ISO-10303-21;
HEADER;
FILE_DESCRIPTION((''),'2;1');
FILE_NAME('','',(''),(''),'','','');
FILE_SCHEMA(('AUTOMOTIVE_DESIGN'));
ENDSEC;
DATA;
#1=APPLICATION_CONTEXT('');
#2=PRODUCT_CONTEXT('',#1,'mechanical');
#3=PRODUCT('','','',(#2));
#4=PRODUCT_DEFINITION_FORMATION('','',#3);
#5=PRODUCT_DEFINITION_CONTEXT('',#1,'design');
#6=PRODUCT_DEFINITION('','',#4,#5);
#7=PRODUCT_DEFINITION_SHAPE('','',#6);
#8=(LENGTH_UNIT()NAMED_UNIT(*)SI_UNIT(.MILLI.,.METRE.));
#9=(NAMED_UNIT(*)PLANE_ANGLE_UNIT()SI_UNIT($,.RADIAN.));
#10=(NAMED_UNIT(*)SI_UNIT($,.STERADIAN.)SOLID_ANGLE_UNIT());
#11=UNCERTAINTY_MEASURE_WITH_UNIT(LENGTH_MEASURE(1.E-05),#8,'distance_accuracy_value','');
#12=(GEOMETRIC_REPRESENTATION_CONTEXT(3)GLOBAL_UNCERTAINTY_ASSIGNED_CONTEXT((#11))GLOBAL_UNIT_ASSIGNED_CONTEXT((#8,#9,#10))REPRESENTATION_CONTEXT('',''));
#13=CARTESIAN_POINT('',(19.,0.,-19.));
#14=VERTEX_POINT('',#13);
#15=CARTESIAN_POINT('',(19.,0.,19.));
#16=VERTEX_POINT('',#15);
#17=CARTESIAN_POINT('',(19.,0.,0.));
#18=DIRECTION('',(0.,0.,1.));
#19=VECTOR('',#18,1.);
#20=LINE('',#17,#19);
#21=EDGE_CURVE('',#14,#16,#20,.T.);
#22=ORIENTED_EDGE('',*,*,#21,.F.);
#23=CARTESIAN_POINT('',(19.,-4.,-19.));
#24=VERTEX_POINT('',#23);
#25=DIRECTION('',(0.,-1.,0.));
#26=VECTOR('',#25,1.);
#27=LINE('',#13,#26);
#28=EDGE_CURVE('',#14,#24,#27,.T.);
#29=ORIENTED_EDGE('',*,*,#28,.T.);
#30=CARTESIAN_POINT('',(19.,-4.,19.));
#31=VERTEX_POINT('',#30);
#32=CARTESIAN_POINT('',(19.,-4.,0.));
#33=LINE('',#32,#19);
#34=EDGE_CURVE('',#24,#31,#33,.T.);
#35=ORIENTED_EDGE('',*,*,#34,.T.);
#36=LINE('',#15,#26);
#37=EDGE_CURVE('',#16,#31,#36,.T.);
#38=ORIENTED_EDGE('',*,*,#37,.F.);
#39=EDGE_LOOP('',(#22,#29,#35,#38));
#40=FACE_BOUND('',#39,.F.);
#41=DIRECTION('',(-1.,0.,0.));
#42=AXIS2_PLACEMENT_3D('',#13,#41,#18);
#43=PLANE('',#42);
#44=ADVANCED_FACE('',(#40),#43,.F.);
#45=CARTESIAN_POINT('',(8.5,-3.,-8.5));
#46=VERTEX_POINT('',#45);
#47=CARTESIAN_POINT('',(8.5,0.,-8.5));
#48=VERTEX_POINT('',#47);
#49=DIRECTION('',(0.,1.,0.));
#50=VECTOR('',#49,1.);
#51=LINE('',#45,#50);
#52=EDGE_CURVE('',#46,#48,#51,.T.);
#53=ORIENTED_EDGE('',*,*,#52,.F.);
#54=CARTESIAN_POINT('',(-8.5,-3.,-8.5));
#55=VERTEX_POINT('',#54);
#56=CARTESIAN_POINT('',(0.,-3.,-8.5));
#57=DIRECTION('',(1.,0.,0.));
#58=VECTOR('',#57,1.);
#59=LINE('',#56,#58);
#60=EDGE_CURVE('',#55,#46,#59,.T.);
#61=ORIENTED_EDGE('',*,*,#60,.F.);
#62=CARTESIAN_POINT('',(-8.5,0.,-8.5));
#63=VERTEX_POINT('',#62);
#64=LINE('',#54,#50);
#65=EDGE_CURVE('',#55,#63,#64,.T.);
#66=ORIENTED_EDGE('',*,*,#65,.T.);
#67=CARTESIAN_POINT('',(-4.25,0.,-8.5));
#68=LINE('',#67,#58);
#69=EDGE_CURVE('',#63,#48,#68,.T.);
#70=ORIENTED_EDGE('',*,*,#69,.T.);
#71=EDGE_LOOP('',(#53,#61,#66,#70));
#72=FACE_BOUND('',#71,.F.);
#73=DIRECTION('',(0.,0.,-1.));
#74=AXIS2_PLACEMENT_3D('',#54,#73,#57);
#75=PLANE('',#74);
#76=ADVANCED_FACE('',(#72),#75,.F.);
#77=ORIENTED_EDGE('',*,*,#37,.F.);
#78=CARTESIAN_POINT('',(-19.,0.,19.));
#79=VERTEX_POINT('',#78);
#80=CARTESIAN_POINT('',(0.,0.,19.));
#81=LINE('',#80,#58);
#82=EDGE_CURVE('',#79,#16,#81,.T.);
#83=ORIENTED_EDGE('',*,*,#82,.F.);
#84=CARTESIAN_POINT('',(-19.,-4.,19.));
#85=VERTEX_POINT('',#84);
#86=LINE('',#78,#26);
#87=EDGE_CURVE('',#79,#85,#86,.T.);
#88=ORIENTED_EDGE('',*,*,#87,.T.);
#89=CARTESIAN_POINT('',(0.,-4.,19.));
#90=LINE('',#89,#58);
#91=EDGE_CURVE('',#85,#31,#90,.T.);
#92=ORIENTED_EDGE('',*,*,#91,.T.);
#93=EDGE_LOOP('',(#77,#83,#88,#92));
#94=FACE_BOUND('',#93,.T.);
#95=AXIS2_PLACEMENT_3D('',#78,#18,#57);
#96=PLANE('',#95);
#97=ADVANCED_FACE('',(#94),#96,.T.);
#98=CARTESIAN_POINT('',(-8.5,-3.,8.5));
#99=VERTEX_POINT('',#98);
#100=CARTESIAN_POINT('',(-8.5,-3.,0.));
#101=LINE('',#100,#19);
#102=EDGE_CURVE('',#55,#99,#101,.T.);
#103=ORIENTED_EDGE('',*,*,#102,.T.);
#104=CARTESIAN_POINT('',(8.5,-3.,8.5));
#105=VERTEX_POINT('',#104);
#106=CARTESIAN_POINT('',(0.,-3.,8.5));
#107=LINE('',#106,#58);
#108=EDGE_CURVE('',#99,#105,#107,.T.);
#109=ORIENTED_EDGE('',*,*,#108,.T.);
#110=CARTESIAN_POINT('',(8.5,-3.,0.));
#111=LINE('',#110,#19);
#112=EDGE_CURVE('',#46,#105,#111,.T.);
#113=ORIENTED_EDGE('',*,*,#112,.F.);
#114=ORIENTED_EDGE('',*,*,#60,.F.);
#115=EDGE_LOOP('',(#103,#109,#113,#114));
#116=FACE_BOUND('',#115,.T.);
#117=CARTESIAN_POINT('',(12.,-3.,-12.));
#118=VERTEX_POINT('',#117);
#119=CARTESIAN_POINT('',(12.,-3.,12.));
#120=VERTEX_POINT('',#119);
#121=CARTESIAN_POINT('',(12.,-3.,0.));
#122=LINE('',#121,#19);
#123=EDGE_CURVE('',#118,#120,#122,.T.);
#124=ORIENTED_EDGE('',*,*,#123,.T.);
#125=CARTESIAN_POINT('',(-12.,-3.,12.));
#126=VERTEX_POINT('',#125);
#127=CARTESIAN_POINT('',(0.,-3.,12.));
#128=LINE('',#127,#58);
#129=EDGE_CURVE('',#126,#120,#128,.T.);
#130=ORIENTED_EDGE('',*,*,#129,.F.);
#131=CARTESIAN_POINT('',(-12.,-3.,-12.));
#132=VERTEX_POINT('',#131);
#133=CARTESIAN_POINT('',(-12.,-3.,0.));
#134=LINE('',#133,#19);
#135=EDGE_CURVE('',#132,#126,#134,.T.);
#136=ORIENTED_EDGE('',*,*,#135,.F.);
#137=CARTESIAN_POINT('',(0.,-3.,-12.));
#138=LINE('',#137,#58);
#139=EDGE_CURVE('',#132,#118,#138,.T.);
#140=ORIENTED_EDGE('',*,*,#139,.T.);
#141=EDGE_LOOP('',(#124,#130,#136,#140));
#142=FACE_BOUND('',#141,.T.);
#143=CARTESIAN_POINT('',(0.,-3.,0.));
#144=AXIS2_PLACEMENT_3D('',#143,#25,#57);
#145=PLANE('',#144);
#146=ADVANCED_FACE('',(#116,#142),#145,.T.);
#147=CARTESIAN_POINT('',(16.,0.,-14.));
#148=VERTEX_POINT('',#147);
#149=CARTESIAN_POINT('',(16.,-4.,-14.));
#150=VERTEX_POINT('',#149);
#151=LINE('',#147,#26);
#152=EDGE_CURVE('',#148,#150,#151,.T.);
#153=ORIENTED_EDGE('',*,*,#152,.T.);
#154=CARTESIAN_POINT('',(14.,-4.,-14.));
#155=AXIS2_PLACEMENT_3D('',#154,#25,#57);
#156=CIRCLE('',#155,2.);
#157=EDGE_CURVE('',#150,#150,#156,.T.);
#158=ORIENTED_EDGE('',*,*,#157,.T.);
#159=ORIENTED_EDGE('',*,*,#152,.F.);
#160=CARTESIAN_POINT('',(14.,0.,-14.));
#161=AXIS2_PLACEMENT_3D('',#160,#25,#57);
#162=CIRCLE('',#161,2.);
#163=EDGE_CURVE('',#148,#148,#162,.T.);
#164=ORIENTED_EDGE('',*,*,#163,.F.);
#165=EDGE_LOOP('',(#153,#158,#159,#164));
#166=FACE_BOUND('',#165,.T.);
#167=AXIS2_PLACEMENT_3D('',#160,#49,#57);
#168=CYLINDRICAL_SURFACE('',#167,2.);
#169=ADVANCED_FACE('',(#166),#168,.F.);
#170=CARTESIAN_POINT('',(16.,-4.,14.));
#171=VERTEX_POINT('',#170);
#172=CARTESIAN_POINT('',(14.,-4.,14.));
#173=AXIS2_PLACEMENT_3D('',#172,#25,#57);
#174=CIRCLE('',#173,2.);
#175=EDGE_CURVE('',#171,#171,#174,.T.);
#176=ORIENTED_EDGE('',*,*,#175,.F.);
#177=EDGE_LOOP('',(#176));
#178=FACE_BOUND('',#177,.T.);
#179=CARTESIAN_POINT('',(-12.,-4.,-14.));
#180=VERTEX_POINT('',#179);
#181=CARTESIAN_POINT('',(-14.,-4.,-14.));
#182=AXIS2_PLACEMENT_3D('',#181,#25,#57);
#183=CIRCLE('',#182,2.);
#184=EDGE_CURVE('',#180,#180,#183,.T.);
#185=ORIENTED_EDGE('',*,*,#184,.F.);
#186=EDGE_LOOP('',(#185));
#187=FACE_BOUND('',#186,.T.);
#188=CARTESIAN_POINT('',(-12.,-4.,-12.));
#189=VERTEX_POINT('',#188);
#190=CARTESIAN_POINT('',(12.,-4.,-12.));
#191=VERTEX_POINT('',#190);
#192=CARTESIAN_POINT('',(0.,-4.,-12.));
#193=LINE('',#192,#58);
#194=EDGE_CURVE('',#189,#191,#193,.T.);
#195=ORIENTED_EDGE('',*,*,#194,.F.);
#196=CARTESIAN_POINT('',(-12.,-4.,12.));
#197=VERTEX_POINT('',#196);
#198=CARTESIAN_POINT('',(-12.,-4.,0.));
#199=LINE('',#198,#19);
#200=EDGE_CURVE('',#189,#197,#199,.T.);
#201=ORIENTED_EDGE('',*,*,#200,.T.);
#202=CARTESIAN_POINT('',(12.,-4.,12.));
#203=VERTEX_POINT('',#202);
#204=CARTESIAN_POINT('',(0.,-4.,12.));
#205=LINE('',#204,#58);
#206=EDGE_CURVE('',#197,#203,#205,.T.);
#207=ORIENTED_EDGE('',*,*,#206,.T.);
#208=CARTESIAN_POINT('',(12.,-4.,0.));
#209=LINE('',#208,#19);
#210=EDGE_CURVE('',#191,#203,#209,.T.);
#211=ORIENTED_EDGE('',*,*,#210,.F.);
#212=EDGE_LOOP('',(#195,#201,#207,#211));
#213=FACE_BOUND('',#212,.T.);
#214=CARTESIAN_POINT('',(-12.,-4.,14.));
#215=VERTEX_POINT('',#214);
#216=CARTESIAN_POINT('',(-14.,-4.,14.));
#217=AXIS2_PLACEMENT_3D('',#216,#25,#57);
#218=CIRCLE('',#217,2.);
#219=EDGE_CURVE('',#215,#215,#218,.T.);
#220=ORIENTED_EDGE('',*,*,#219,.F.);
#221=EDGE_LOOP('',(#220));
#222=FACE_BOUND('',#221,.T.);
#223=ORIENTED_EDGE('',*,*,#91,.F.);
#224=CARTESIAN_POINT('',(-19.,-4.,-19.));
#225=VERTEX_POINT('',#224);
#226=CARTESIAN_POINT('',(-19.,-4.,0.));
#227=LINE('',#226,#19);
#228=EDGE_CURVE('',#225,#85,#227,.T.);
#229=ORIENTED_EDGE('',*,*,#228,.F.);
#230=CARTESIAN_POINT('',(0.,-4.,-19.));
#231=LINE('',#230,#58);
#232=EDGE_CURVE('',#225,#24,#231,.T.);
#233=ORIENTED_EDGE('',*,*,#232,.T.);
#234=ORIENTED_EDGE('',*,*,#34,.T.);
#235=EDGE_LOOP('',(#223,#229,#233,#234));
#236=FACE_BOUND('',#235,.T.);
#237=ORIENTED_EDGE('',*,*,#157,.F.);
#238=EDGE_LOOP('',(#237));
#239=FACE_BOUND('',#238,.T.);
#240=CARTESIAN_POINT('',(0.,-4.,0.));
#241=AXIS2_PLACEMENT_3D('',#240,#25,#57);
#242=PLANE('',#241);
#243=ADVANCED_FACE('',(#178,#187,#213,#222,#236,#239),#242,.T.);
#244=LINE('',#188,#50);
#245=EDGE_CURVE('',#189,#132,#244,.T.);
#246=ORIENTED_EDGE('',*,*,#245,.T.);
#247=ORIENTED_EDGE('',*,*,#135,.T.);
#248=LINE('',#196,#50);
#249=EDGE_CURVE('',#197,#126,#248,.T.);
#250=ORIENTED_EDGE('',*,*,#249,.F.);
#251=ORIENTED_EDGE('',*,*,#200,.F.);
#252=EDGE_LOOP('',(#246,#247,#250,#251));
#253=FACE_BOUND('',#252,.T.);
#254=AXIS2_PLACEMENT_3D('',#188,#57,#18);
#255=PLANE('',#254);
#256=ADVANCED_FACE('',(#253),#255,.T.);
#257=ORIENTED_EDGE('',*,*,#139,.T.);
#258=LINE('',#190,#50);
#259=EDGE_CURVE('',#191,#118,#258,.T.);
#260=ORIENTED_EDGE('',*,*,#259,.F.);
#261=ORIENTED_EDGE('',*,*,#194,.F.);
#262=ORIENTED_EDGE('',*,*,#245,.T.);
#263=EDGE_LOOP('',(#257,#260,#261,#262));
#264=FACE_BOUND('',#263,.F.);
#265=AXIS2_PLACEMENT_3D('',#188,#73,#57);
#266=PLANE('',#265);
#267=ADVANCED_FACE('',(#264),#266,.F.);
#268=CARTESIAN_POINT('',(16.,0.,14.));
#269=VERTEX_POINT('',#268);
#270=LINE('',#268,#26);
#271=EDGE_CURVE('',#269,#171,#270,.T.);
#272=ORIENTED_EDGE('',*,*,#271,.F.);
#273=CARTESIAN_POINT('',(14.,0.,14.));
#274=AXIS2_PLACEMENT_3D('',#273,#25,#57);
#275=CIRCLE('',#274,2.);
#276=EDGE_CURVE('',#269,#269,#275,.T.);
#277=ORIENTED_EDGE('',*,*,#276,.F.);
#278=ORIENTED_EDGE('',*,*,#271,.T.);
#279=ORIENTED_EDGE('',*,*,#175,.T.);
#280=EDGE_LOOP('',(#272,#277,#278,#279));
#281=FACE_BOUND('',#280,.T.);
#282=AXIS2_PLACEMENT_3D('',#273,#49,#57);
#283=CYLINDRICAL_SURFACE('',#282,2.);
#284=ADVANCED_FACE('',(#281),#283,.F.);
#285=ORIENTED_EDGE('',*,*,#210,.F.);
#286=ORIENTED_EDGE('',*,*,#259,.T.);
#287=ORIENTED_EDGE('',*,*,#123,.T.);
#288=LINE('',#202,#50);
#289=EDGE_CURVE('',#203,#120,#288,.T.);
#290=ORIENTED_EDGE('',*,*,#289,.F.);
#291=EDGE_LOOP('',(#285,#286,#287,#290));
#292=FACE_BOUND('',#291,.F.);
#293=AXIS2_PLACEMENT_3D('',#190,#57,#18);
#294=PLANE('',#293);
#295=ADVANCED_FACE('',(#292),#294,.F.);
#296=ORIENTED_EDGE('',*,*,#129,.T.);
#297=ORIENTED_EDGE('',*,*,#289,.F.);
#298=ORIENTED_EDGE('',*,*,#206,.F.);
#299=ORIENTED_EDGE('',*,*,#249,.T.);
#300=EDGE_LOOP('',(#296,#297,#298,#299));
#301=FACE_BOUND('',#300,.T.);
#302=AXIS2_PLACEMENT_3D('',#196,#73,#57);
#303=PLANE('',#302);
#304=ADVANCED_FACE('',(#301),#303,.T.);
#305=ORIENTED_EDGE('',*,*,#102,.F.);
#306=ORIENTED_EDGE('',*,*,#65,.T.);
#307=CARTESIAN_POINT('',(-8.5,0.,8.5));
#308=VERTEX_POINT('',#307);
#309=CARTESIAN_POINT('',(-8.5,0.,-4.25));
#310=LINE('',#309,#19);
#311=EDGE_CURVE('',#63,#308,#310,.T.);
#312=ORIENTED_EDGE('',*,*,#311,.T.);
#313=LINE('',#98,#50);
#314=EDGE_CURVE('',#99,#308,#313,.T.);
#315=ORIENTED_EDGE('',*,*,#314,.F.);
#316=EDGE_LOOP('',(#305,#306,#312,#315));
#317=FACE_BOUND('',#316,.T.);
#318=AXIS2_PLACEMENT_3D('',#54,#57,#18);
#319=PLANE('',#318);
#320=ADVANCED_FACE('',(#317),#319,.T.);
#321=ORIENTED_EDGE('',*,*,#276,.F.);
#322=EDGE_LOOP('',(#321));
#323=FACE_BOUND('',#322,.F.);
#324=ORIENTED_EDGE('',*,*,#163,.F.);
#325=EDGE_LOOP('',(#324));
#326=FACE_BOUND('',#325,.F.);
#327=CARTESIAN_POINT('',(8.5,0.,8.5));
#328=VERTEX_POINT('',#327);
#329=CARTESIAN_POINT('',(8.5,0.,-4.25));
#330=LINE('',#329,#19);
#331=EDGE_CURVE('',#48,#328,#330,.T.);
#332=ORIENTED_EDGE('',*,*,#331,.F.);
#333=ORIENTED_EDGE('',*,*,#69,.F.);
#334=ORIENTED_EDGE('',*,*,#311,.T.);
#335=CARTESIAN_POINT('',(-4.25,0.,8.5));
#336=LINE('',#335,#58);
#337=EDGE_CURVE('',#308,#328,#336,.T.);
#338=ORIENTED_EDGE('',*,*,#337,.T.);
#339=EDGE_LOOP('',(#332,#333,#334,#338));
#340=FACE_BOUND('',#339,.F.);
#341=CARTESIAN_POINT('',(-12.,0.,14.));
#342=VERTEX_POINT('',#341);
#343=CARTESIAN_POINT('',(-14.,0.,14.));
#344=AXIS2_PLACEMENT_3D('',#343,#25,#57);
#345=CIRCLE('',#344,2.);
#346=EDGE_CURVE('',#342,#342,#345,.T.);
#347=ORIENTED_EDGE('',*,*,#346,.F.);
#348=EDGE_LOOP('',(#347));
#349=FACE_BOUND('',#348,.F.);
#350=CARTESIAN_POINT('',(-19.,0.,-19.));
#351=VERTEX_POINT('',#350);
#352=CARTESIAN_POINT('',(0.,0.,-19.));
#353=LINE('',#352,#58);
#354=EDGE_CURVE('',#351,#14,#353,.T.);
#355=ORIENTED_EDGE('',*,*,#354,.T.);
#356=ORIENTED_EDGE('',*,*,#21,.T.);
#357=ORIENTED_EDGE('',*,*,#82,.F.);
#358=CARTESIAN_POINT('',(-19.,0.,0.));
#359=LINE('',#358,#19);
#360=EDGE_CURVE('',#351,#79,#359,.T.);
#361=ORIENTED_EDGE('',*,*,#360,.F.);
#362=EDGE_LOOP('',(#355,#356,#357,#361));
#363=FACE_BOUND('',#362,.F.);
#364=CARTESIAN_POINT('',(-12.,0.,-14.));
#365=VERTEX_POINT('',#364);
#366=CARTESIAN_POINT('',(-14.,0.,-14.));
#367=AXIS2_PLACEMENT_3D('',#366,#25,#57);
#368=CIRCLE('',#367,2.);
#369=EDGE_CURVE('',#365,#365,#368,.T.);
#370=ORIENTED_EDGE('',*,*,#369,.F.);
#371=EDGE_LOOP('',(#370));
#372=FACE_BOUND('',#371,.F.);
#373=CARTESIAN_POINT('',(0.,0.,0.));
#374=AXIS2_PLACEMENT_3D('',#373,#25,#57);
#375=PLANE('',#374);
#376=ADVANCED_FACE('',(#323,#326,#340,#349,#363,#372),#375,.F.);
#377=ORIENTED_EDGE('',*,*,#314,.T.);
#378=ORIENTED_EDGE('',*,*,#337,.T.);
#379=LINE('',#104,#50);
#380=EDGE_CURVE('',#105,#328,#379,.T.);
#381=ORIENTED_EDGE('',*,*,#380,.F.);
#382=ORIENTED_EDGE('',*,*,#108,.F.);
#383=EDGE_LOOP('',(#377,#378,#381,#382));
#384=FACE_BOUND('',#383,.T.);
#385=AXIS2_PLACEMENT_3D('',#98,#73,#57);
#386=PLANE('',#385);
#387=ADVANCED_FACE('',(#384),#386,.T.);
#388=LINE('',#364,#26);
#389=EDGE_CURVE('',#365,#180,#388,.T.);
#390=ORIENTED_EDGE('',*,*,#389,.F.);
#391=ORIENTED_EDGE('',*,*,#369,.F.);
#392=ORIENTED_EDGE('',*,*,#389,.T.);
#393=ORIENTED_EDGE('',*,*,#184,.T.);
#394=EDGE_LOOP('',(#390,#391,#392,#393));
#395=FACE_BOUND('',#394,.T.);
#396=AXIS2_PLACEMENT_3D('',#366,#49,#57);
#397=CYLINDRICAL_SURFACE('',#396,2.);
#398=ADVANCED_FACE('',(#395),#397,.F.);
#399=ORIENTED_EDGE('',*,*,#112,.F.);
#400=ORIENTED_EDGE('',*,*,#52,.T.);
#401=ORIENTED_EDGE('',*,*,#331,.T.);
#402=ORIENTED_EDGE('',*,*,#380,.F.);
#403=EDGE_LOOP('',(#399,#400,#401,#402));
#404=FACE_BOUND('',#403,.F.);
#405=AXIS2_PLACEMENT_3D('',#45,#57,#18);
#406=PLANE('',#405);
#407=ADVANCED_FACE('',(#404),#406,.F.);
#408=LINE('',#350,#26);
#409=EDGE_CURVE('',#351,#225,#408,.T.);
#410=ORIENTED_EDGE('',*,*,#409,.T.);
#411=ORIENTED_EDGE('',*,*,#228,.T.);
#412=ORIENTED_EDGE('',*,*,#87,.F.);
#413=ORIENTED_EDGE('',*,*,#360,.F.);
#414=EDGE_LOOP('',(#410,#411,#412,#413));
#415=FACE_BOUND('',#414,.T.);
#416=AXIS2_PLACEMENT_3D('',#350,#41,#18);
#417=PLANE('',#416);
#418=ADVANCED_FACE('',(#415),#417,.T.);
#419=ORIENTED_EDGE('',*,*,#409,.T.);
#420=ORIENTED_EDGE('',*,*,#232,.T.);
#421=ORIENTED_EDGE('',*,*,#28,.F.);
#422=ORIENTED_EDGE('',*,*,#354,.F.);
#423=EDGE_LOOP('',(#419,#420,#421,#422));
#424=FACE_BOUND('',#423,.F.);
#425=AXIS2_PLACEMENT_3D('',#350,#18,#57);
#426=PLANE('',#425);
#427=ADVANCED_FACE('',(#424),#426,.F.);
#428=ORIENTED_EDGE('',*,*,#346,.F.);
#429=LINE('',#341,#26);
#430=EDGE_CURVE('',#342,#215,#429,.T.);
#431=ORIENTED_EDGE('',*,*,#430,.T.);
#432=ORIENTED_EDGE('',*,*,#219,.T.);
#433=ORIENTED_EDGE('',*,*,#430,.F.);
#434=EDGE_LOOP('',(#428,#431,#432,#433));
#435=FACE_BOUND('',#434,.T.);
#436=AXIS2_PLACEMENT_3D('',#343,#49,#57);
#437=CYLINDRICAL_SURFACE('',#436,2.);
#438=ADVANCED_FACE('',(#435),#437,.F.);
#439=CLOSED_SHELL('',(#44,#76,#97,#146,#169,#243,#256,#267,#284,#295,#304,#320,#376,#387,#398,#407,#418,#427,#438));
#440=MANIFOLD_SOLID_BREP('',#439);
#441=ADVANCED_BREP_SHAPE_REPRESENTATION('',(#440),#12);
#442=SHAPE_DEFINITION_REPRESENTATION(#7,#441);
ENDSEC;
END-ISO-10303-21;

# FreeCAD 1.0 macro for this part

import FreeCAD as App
import Part
import Sketcher
from FreeCAD import Vector
Q = App.Units.Quantity

doc = App.newDocument("Part")
body = doc.addObject("PartDesign::Body", "Body")

# Sketch on XZ plane
sketch1 = body.newObject("Sketcher::SketchObject", "Sketch")
sketch1.AttachmentSupport = (doc.getObject("XZ_Plane"), [""])
sketch1.MapMode = "FlatFace"
sketch1.addGeometry([
    Part.LineSegment(Vector(-19, 19, 0), Vector(-19, -19, 0)),  # 0
    Part.LineSegment(Vector(-19, -19, 0), Vector(19, -19, 0)),  # 1
    Part.LineSegment(Vector(19, -19, 0), Vector(19, 19, 0)),  # 2
    Part.LineSegment(Vector(19, 19, 0), Vector(-19, 19, 0)),  # 3
    Part.Circle(Vector(-14, -14, 0), Vector(0, 0, 1), 2),  # 4
    Part.Circle(Vector(14, -14, 0), Vector(0, 0, 1), 2),  # 5
    Part.Circle(Vector(-14, 14, 0), Vector(0, 0, 1), 2),  # 6
    Part.Circle(Vector(14, 14, 0), Vector(0, 0, 1), 2),  # 7
], False)
sketch1.addConstraint([
    Sketcher.Constraint("Coincident", 0, 2, 1, 1),
    Sketcher.Constraint("Coincident", 1, 2, 2, 1),
    Sketcher.Constraint("Coincident", 2, 2, 3, 1),
    Sketcher.Constraint("Coincident", 3, 2, 0, 1),
    Sketcher.Constraint("Vertical", 0),
    Sketcher.Constraint("Horizontal", 1),
    Sketcher.Constraint("Vertical", 2),
    Sketcher.Constraint("Horizontal", 3),
    Sketcher.Constraint("Equal", 4, 5),
    Sketcher.Constraint("Equal", 5, 6),
    Sketcher.Constraint("Equal", 6, 7),
    Sketcher.Constraint("Symmetric", 5, 3, 6, 3, -1, 1),
    Sketcher.Constraint("Symmetric", 4, 3, 7, 3, -1, 1),
    Sketcher.Constraint("Symmetric", 0, 2, 2, 2, -1, 1),
    Sketcher.Constraint("Symmetric", 4, 3, 5, 3, -2),
    Sketcher.Constraint("Equal", 3, 0),
    Sketcher.Constraint("Diameter", 4, Q("4 mm")),
    Sketcher.Constraint("DistanceX", 1, 1, 1, 2, Q("38 mm")),
    Sketcher.Constraint("DistanceX", 4, 3, -1, 1, Q("14 mm")),
    Sketcher.Constraint("DistanceY", 4, 3, -1, 1, Q("14 mm")),
])
pad1 = body.newObject("PartDesign::Pad", "Pad")
pad1.Profile = sketch1
pad1.Length = 4

# Sketch on XZ plane
sketch2 = body.newObject("Sketcher::SketchObject", "Sketch001")
sketch2.AttachmentSupport = (doc.getObject("XZ_Plane"), [""])
sketch2.MapMode = "FlatFace"
sketch2.AttachmentOffset = App.Placement(Vector(0, 0, 4), App.Rotation())
sketch2.addGeometry([
    Part.LineSegment(Vector(-12, 12, 0), Vector(-12, -12, 0)),
    Part.LineSegment(Vector(-12, -12, 0), Vector(12, -12, 0)),
    Part.LineSegment(Vector(12, -12, 0), Vector(12, 12, 0)),
    Part.LineSegment(Vector(12, 12, 0), Vector(-12, 12, 0)),
], False)
sketch2.addConstraint([
    Sketcher.Constraint("Coincident", 0, 2, 1, 1),
    Sketcher.Constraint("Coincident", 1, 2, 2, 1),
    Sketcher.Constraint("Coincident", 2, 2, 3, 1),
    Sketcher.Constraint("Coincident", 3, 2, 0, 1),
    Sketcher.Constraint("Vertical", 0),
    Sketcher.Constraint("Horizontal", 1),
    Sketcher.Constraint("Vertical", 2),
    Sketcher.Constraint("Horizontal", 3),
    Sketcher.Constraint("Symmetric", 0, 2, 2, 2, -1, 1),
    Sketcher.Constraint("Equal", 3, 0),
    Sketcher.Constraint("DistanceX", 1, 1, 1, 2, Q("24 mm")),
])
pocket1 = body.newObject("PartDesign::Pocket", "Pocket")
pocket1.Profile = sketch2
pocket1.Length = 1

# Sketch on XZ plane
sketch3 = body.newObject("Sketcher::SketchObject", "Sketch002")
sketch3.AttachmentSupport = (doc.getObject("XZ_Plane"), [""])
sketch3.MapMode = "FlatFace"
sketch3.AttachmentOffset = App.Placement(Vector(0, 0, 3), App.Rotation())
sketch3.addGeometry([
    Part.LineSegment(Vector(-8, 8, 0), Vector(-8, -8, 0)),
    Part.LineSegment(Vector(-8, -8, 0), Vector(8, -8, 0)),
    Part.LineSegment(Vector(8, -8, 0), Vector(8, 8, 0)),
    Part.LineSegment(Vector(8, 8, 0), Vector(-8, 8, 0)),
], False)
sketch3.addConstraint([
    Sketcher.Constraint("Coincident", 0, 2, 1, 1),
    Sketcher.Constraint("Coincident", 1, 2, 2, 1),
    Sketcher.Constraint("Coincident", 2, 2, 3, 1),
    Sketcher.Constraint("Coincident", 3, 2, 0, 1),
    Sketcher.Constraint("Vertical", 0),
    Sketcher.Constraint("Horizontal", 1),
    Sketcher.Constraint("Vertical", 2),
    Sketcher.Constraint("Horizontal", 3),
    Sketcher.Constraint("Symmetric", 0, 2, 2, 2, -1, 1),
    Sketcher.Constraint("Equal", 3, 0),
    Sketcher.Constraint("DistanceX", 1, 1, 1, 2, Q("17 mm")),
])
pocket2 = body.newObject("PartDesign::Pocket", "Pocket001")
pocket2.Profile = sketch3
pocket2.Type = "ThroughAll"

doc.recompute()
